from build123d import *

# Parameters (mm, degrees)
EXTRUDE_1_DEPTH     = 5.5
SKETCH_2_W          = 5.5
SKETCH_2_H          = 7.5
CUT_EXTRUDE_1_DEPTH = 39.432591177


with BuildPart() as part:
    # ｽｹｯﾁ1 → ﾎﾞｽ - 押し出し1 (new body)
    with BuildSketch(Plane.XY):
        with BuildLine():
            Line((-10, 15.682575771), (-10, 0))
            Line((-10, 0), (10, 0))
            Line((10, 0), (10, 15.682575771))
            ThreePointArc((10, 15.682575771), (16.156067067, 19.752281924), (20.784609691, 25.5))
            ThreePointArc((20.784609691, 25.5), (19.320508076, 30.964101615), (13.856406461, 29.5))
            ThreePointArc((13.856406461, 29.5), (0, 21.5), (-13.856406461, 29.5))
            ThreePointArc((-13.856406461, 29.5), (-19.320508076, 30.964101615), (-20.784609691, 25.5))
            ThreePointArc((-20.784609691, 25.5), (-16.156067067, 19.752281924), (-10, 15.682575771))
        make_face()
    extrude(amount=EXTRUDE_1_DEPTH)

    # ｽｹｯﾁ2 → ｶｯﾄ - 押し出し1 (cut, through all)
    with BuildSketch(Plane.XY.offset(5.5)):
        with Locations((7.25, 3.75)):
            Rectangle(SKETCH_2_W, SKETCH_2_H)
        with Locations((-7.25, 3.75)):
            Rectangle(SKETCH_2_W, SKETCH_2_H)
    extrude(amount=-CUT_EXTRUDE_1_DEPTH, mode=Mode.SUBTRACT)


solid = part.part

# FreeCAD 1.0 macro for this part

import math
import FreeCAD as App
import Part
import Sketcher

V = App.Vector
Q = App.Units.Quantity


def add_polygon(sketch, points):
    """Adds a closed chain of lines whose ends are joined by coincident constraints."""
    first, n = sketch.GeometryCount, len(points)
    for a, b in zip(points, points[1:] + points[:1]):
        sketch.addGeometry(Part.LineSegment(App.Vector(*a, 0), App.Vector(*b, 0)), False)
    for i in range(n):
        sketch.addConstraint(Sketcher.Constraint("Coincident", first + i, 2, first + (i + 1) % n, 1))

doc = App.newDocument("Part")
params = doc.addObject("Spreadsheet::Sheet", "Params")
for row, (alias, value) in enumerate([
    ("sketch1_radius", "24 mm"),
    ("sketch1_radius2", "4 mm"),
    ("sketch1_width", "20 mm"),
    ("pad1_length", "5.5 mm"),
    ("sketch2_width", "5.5 mm"),
    ("sketch2_height", "7.5 mm"),
], start=1):
    params.set(f"A{row}", alias)
    params.set(f"B{row}", "=" + value)
    params.setAlias(f"B{row}", alias)

body = doc.addObject("PartDesign::Body", "Body")

# Sketch on XY plane
sketch1 = body.newObject("Sketcher::SketchObject", "Sketch")
sketch1.AttachmentSupport = (doc.getObject("XY_Plane"), [""])
sketch1.MapMode = "FlatFace"
sketch1.addGeometry([
    Part.LineSegment(V(-10, 15.682576, 0), V(-10, 0, 0)),  # 0
    Part.LineSegment(V(-10, 0, 0), V(10, 0, 0)),  # 1
    Part.LineSegment(V(10, 0, 0), V(10, 15.682576, 0)),  # 2
    Part.ArcOfCircle(Part.Circle(V(0, 37.5, 0), V(0, 0, 1), 24), math.radians(-65.375682), math.radians(-30)),  # 3
    Part.ArcOfCircle(Part.Circle(V(17.320508, 27.5, 0), V(0, 0, 1), 4), math.radians(-30), math.radians(150)),  # 4
    Part.ArcOfCircle(Part.Circle(V(0, 37.5, 0), V(0, 0, 1), 16), math.radians(-150), math.radians(-30)),  # 5
    Part.ArcOfCircle(Part.Circle(V(-17.320508, 27.5, 0), V(0, 0, 1), 4), math.radians(30), math.radians(210)),  # 6
    Part.ArcOfCircle(Part.Circle(V(0, 37.5, 0), V(0, 0, 1), 24), math.radians(-150), math.radians(-114.624318)),  # 7
], False)
sketch1.addConstraint([
    Sketcher.Constraint("Coincident", 0, 2, 1, 1),
    Sketcher.Constraint("Coincident", 1, 2, 2, 1),
    Sketcher.Constraint("Coincident", 2, 2, 3, 1),
    Sketcher.Constraint("Tangent", 3, 2, 4, 1),
    Sketcher.Constraint("Tangent", 4, 2, 5, 2),
    Sketcher.Constraint("Tangent", 5, 1, 6, 1),
    Sketcher.Constraint("Tangent", 6, 2, 7, 1),
    Sketcher.Constraint("Coincident", 7, 2, 0, 1),
    Sketcher.Constraint("Vertical", 0),
    Sketcher.Constraint("Horizontal", 1),
    Sketcher.Constraint("Vertical", 2),
    Sketcher.Constraint("Coincident", 5, 3, 3, 3),
    Sketcher.Constraint("Coincident", 7, 3, 3, 3),
    Sketcher.Constraint("Equal", 4, 6),
    Sketcher.Constraint("Symmetric", 0, 2, 1, 2, -1, 1),
    Sketcher.Constraint("Symmetric", 4, 3, 6, 3, -2),
    Sketcher.Constraint("Radius", 3, Q("24 mm")),
    Sketcher.Constraint("Radius", 4, Q("4 mm")),
    Sketcher.Constraint("DistanceX", 1, 1, 1, 2, Q("20 mm")),
    Sketcher.Constraint("DistanceY", 4, 3, 3, 3, Q("10 mm")),
    Sketcher.Constraint("DistanceY", -1, 1, 3, 3, Q("37.5 mm")),
])
sketch1.setExpression("Constraints[16]", "Params.sketch1_radius")
sketch1.setExpression("Constraints[17]", "Params.sketch1_radius2")
sketch1.setExpression("Constraints[18]", "Params.sketch1_width")
pad1 = body.newObject("PartDesign::Pad", "Pad")
pad1.Profile = sketch1
pad1.setExpression("Length", "Params.pad1_length")

# Sketch on XY plane
sketch2 = body.newObject("Sketcher::SketchObject", "Sketch001")
sketch2.AttachmentSupport = (doc.getObject("XY_Plane"), [""])
sketch2.MapMode = "FlatFace"
sketch2.AttachmentOffset = App.Placement(V(0, 0, 5.5), App.Rotation())
add_polygon(sketch2, [(4.5, 7.5), (4.5, 0), (10, 0), (10, 7.5)])  # lines 0-3
add_polygon(sketch2, [(-10, 7.5), (-10, 0), (-4.5, 0), (-4.5, 7.5)])  # lines 4-7
sketch2.addConstraint([
    Sketcher.Constraint("Vertical", 0),
    Sketcher.Constraint("Horizontal", 1),
    Sketcher.Constraint("Vertical", 2),
    Sketcher.Constraint("Horizontal", 3),
    Sketcher.Constraint("Vertical", 4),
    Sketcher.Constraint("Horizontal", 5),
    Sketcher.Constraint("Vertical", 6),
    Sketcher.Constraint("Horizontal", 7),
    Sketcher.Constraint("Symmetric", 1, 2, 4, 2, -1, 1),
    Sketcher.Constraint("Symmetric", 0, 2, 5, 2, -2),
    Sketcher.Constraint("Horizontal", 3, 2, 6, 2),
    Sketcher.Constraint("DistanceX", 1, 1, 1, 2, Q("5.5 mm")),
    Sketcher.Constraint("DistanceY", 0, 2, 0, 1, Q("7.5 mm")),
    Sketcher.Constraint("DistanceX", -1, 1, 1, 2, Q("10 mm")),
])
sketch2.setExpression("Constraints[19]", "Params.sketch2_width")
sketch2.setExpression("Constraints[20]", "Params.sketch2_height")
pocket1 = body.newObject("PartDesign::Pocket", "Pocket")
pocket1.Profile = sketch2
pocket1.Type = "ThroughAll"

doc.recompute()
